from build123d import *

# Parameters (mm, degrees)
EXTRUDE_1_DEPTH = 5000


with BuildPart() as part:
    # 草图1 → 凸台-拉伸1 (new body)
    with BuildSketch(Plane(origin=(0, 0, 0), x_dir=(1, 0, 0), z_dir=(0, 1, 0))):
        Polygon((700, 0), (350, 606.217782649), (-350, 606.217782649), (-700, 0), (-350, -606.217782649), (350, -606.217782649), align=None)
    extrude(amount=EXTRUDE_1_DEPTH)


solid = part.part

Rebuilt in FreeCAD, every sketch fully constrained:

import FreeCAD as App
import Part
import Sketcher

V = App.Vector
Q = App.Units.Quantity


def add_polygon(sketch, points):
    """Adds a closed chain of lines whose ends are joined by coincident constraints."""
    first, n = sketch.GeometryCount, len(points)
    for a, b in zip(points, points[1:] + points[:1]):
        sketch.addGeometry(Part.LineSegment(App.Vector(*a, 0), App.Vector(*b, 0)), False)
    for i in range(n):
        sketch.addConstraint(Sketcher.Constraint("Coincident", first + i, 2, first + (i + 1) % n, 1))

doc = App.newDocument("Part")
params = doc.addObject("Spreadsheet::Sheet", "Params")
for row, (alias, value) in enumerate([
    ("sketch1_width", "700 mm"),
    ("sketch1_length", "700 mm"),
    ("pad1_length", "5000 mm"),
], start=1):
    params.set(f"A{row}", alias)
    params.set(f"B{row}", "=" + value)
    params.setAlias(f"B{row}", alias)

body = doc.addObject("PartDesign::Body", "Body")

sketch1 = doc.addObject("Sketcher::SketchObject", "Sketch")
body.addObject(sketch1)
sketch1.AttachmentSupport = (doc.XZ_Plane, [""])
sketch1.MapMode = "FlatFace"
add_polygon(sketch1, [(700, 0), (350, -606), (-350, -606), (-700, 0), (-350, 606), (350, 606)])
sketch1.addConstraint(Sketcher.Constraint("Horizontal", 1))
sketch1.addConstraint(Sketcher.Constraint("Horizontal", 4))
sketch1.addConstraint(Sketcher.Constraint("Symmetric", 0, 2, 3, 2, -1, 1))
sketch1.addConstraint(Sketcher.Constraint("Symmetric", 2, 2, 5, 2, -1, 1))
sketch1.addConstraint(Sketcher.Constraint("PointOnObject", 2, 2, -1))
sketch1.addConstraint(Sketcher.Constraint("Parallel", 2, 5))
sketch1.addConstraint(Sketcher.Constraint("Vertical", 1, 2, 3, 2))
sketch1.addConstraint(Sketcher.Constraint("DistanceX", 1, 2, 1, 1, Q("700 mm")))
sketch1.addConstraint(Sketcher.Constraint("Angle", 0, Q("-120 deg")))
sketch1.addConstraint(Sketcher.Constraint("Distance", 0, Q("700 mm")))
sketch1.setExpression("Constraints[13]", "Params.sketch1_width")
sketch1.setExpression("Constraints[15]", "Params.sketch1_length")
pad1 = doc.addObject("PartDesign::Pad", "Pad")
body.addObject(pad1)
pad1.Profile = sketch1
pad1.setExpression("Length", "Params.pad1_length")
pad1.Reversed = True

doc.recompute()
